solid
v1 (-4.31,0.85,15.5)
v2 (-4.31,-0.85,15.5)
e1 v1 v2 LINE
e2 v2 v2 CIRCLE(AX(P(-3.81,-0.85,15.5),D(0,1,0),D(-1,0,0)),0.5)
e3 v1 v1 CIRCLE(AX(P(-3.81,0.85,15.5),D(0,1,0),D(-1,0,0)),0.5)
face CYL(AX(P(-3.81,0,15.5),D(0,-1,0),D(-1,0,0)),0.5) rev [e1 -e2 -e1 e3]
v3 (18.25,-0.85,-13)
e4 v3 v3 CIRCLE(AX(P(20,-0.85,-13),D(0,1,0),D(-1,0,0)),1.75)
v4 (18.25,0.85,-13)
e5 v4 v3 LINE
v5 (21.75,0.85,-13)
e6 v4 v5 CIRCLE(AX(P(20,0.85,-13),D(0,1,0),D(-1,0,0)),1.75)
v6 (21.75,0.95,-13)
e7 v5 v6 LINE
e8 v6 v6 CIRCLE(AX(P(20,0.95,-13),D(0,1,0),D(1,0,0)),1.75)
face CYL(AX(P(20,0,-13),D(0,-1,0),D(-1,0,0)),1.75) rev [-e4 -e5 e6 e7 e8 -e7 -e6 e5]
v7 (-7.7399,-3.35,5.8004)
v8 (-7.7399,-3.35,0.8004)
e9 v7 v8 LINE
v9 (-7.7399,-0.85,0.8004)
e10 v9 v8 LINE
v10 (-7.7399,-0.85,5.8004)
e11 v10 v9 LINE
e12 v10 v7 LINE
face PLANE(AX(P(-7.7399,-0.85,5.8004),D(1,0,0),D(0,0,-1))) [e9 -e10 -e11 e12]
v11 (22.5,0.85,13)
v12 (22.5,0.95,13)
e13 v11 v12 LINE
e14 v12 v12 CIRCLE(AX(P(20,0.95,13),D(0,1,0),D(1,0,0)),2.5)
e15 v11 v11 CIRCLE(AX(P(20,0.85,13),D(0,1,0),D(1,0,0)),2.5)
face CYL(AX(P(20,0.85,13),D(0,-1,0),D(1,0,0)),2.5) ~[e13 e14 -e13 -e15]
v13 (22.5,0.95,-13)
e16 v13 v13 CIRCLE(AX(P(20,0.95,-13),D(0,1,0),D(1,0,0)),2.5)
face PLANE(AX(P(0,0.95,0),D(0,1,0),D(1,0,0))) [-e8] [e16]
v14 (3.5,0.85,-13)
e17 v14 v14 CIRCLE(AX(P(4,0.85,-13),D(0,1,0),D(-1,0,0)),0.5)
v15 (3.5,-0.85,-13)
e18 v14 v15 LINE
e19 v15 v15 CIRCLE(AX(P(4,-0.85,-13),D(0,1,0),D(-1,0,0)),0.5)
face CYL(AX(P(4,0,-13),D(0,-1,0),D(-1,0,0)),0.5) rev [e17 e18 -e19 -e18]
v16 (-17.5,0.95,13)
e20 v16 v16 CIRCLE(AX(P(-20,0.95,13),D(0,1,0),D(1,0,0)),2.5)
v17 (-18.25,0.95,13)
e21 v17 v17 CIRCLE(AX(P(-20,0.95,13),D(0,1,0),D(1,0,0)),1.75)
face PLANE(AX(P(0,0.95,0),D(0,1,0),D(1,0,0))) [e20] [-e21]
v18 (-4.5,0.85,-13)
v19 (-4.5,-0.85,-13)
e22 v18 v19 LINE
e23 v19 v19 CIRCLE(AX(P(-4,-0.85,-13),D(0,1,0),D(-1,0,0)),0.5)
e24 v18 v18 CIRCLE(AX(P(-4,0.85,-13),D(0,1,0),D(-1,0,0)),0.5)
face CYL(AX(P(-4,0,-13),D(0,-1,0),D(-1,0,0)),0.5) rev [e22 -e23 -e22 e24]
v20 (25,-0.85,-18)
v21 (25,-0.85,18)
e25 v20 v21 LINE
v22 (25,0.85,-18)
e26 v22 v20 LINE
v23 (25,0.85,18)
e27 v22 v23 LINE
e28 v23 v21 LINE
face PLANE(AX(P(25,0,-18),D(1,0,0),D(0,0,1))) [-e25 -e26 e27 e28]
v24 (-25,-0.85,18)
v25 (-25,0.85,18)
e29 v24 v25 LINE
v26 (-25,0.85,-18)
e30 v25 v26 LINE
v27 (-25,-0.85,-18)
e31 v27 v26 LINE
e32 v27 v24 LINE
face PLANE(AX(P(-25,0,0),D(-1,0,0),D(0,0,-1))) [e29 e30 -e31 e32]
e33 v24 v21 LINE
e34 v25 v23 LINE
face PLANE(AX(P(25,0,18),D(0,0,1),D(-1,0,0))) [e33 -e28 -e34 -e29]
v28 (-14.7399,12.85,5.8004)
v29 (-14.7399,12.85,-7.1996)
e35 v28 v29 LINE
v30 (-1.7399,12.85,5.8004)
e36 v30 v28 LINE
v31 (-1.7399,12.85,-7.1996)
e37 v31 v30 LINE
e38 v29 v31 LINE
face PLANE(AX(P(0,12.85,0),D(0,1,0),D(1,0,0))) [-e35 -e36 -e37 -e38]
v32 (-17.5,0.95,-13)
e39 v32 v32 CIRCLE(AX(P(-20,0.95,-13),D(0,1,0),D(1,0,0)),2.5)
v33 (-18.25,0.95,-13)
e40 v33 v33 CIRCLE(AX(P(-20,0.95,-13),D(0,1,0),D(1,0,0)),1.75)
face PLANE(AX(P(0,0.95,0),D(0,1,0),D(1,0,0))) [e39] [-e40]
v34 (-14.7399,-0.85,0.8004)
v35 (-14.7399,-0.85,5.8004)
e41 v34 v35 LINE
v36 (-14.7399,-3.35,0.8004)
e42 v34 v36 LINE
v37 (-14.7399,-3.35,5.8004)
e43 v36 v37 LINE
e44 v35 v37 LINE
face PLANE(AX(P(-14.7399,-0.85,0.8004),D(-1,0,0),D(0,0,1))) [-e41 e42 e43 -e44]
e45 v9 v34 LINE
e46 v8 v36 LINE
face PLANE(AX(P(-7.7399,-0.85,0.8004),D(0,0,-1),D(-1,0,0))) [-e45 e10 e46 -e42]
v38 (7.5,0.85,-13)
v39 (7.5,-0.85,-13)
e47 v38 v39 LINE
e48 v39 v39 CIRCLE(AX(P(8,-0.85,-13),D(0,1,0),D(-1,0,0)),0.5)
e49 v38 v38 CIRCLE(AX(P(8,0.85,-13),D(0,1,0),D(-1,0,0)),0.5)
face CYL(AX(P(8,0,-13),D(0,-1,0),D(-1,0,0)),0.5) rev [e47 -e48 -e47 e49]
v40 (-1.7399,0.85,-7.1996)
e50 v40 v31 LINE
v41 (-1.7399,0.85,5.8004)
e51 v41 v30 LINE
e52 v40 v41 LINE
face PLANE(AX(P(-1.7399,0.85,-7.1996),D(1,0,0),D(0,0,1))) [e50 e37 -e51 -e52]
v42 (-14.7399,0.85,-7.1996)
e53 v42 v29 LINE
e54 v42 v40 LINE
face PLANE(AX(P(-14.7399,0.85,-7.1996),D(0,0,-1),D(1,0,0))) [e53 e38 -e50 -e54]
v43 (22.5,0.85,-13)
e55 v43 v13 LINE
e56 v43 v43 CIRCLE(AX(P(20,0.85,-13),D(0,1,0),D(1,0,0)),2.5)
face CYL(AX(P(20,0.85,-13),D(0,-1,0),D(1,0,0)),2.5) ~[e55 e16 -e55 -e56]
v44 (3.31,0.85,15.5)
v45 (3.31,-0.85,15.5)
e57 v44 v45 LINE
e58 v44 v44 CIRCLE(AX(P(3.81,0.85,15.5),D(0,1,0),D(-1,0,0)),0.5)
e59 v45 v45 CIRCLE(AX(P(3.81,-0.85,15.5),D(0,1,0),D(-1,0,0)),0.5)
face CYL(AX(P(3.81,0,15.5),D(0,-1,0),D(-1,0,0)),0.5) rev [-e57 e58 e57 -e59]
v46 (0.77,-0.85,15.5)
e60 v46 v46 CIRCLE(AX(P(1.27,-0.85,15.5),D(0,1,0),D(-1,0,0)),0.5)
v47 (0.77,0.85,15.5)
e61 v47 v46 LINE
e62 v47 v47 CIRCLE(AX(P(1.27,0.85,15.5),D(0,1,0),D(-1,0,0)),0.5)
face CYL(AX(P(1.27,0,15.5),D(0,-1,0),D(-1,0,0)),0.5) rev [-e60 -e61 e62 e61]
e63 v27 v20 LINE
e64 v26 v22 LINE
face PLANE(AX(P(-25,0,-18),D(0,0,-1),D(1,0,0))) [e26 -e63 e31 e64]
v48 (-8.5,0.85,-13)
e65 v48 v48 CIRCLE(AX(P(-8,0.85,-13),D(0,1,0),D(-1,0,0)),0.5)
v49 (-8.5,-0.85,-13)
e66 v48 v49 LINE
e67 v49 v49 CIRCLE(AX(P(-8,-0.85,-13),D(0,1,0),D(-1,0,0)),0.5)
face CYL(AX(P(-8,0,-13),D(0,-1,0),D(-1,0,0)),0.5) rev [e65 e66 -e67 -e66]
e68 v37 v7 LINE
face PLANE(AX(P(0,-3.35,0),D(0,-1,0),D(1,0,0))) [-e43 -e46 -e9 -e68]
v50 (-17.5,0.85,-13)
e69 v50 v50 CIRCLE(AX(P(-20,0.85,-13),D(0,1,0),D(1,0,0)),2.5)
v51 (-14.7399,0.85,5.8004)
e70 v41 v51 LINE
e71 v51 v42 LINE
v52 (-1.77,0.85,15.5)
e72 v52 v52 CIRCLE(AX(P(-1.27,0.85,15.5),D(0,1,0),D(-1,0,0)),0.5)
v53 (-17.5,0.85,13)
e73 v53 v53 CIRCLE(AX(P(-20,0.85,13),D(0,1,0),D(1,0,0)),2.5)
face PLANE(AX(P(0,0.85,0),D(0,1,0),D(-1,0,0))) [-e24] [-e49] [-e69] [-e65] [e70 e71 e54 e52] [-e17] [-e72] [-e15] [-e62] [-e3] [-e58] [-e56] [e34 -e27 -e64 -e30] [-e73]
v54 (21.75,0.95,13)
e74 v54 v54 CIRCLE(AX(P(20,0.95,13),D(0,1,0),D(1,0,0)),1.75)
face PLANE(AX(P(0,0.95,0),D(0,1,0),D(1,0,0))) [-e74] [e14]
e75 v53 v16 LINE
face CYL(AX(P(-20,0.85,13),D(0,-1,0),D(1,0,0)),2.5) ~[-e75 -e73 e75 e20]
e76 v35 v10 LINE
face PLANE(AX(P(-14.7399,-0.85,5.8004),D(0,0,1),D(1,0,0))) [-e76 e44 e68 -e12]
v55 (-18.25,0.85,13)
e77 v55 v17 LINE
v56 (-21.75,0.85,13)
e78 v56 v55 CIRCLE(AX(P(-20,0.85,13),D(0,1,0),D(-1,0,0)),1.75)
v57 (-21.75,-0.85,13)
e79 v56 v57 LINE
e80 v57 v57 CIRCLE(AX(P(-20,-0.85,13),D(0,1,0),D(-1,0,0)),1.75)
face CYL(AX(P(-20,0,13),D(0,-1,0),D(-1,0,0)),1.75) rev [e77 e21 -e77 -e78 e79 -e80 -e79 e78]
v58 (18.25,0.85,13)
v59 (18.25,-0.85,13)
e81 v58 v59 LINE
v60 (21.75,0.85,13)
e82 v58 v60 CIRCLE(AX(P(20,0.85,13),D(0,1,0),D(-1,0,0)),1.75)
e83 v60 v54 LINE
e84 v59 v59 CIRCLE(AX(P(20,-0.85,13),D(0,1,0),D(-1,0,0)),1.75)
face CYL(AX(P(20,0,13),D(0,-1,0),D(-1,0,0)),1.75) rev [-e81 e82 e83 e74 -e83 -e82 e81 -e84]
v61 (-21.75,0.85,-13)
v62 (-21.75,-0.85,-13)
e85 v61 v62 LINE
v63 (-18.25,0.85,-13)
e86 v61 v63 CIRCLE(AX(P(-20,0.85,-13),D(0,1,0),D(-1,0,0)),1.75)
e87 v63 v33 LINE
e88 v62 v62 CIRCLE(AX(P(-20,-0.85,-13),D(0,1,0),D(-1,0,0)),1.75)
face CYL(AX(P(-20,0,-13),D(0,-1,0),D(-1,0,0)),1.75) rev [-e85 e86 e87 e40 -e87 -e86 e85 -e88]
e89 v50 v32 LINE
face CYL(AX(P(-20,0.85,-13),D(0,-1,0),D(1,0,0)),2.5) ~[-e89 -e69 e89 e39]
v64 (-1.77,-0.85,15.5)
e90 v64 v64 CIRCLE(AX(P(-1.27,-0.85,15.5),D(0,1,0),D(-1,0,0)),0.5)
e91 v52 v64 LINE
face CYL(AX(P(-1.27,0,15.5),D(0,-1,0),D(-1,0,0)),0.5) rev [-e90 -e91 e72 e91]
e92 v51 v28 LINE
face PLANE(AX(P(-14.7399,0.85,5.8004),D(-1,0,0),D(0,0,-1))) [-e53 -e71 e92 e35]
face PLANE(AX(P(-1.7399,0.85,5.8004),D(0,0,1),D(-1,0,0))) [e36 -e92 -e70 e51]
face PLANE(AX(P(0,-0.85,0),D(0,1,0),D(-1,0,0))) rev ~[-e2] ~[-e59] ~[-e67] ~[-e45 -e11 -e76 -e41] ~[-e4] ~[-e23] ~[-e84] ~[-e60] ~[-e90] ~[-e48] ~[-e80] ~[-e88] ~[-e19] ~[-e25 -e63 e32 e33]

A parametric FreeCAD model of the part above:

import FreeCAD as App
import Part
import Sketcher

V = App.Vector
Q = App.Units.Quantity


def add_polygon(sketch, points):
    """Adds a closed chain of lines whose ends are joined by coincident constraints."""
    first, n = sketch.GeometryCount, len(points)
    for a, b in zip(points, points[1:] + points[:1]):
        sketch.addGeometry(Part.LineSegment(App.Vector(*a, 0), App.Vector(*b, 0)), False)
    for i in range(n):
        sketch.addConstraint(Sketcher.Constraint("Coincident", first + i, 2, first + (i + 1) % n, 1))

doc = App.newDocument("Part")
params = doc.addObject("Spreadsheet::Sheet", "Params")
for row, (alias, value) in enumerate([
    ("sketch1_diameter", "1 mm"),
    ("sketch1_diameter2", "3.5 mm"),
    ("sketch1_width", "50 mm"),
    ("sketch1_height", "36 mm"),
    ("pad1_length", "1.7 mm"),
    ("sketch2_width", "13 mm"),
    ("pad2_length", "12 mm"),
    ("sketch3_width", "7 mm"),
    ("sketch3_height", "5 mm"),
    ("pad3_length", "2.5 mm"),
    ("sketch4_diameter", "5 mm"),
    ("sketch4_diameter2", "3.5 mm"),
    ("pad4_length", "0.1 mm"),
], start=1):
    params.set(f"A{row}", alias)
    params.set(f"B{row}", "=" + value)
    params.setAlias(f"B{row}", alias)

body = doc.addObject("PartDesign::Body", "Body")

sketch1 = doc.addObject("Sketcher::SketchObject", "Sketch")
body.addObject(sketch1)
sketch1.AttachmentSupport = (doc.XZ_Plane, [""])
sketch1.MapMode = "FlatFace"
add_polygon(sketch1, [(25, -18), (-25, -18), (-25, 18), (25, 18)])
sketch1.addGeometry(Part.Circle(V(20, -13, 0), V(0, 0, 1), 1.8), False)
sketch1.addGeometry(Part.Circle(V(8, -13, 0), V(0, 0, 1), 0.5), False)
sketch1.addGeometry(Part.Circle(V(4, -13, 0), V(0, 0, 1), 0.5), False)
sketch1.addGeometry(Part.Circle(V(-4, -13, 0), V(0, 0, 1), 0.5), False)
sketch1.addGeometry(Part.Circle(V(-8, -13, 0), V(0, 0, 1), 0.5), False)
sketch1.addGeometry(Part.Circle(V(-20, -13, 0), V(0, 0, 1), 1.8), False)
sketch1.addGeometry(Part.Circle(V(20, 13, 0), V(0, 0, 1), 1.8), False)
sketch1.addGeometry(Part.Circle(V(3.8, 15.5, 0), V(0, 0, 1), 0.5), False)
sketch1.addGeometry(Part.Circle(V(1.3, 15.5, 0), V(0, 0, 1), 0.5), False)
sketch1.addGeometry(Part.Circle(V(-1.3, 15.5, 0), V(0, 0, 1), 0.5), False)
sketch1.addGeometry(Part.Circle(V(-3.8, 15.5, 0), V(0, 0, 1), 0.5), False)
sketch1.addGeometry(Part.Circle(V(-20, 13, 0), V(0, 0, 1), 1.8), False)
sketch1.addConstraint([
    Sketcher.Constraint("Horizontal", 0),
    Sketcher.Constraint("Vertical", 1),
    Sketcher.Constraint("Horizontal", 2),
    Sketcher.Constraint("Vertical", 3),
    Sketcher.Constraint("Equal", 5, 6),
    Sketcher.Constraint("Equal", 6, 7),
    Sketcher.Constraint("Equal", 7, 8),
    Sketcher.Constraint("Equal", 4, 9),
    Sketcher.Constraint("Equal", 9, 10),
    Sketcher.Constraint("Equal", 8, 11),
    Sketcher.Constraint("Equal", 11, 12),
    Sketcher.Constraint("Equal", 12, 13),
    Sketcher.Constraint("Equal", 13, 14),
    Sketcher.Constraint("Equal", 10, 15),
    Sketcher.Constraint("Symmetric", 9, 3, 10, 3, -1, 1),
    Sketcher.Constraint("Symmetric", 4, 3, 15, 3, -1, 1),
    Sketcher.Constraint("Symmetric", 0, 2, 2, 2, -1, 1),
    Sketcher.Constraint("Symmetric", 6, 3, 7, 3, -2),
    Sketcher.Constraint("Symmetric", 5, 3, 8, 3, -2),
    Sketcher.Constraint("Symmetric", 4, 3, 9, 3, -2),
    Sketcher.Constraint("Symmetric", 12, 3, 13, 3, -2),
    Sketcher.Constraint("Symmetric", 11, 3, 14, 3, -2),
    Sketcher.Constraint("Horizontal", 4, 3, 5, 3),
    Sketcher.Constraint("Horizontal", 5, 3, 6, 3),
    Sketcher.Constraint("Horizontal", 11, 3, 12, 3),
    Sketcher.Constraint("Diameter", 5, Q("1 mm")),
    Sketcher.Constraint("Diameter", 4, Q("3.5 mm")),
    Sketcher.Constraint("DistanceX", 0, 2, 0, 1, Q("50 mm")),
    Sketcher.Constraint("DistanceY", 1, 1, 1, 2, Q("36 mm")),
    Sketcher.Constraint("DistanceX", -1, 1, 6, 3, Q("4 mm")),
    Sketcher.Constraint("DistanceX", 5, 3, 4, 3, Q("12 mm")),
    Sketcher.Constraint("DistanceX", 6, 3, 5, 3, Q("4 mm")),
    Sketcher.Constraint("DistanceY", 4, 3, 10, 3, Q("26 mm")),
    Sketcher.Constraint("DistanceY", 10, 3, 11, 3, Q("2.5 mm")),
    Sketcher.Constraint("DistanceX", -1, 1, 12, 3, Q("1.27 mm")),
    Sketcher.Constraint("DistanceX", 12, 3, 11, 3, Q("2.54 mm")),
])
sketch1.setExpression("Constraints[29]", "Params.sketch1_diameter")
sketch1.setExpression("Constraints[30]", "Params.sketch1_diameter2")
sketch1.setExpression("Constraints[31]", "Params.sketch1_width")
sketch1.setExpression("Constraints[32]", "Params.sketch1_height")
pad1 = doc.addObject("PartDesign::Pad", "Pad")
body.addObject(pad1)
pad1.Profile = sketch1
pad1.setExpression("Length", "Params.pad1_length")
pad1.Midplane = True

sketch2 = doc.addObject("Sketcher::SketchObject", "Sketch001")
body.addObject(sketch2)
sketch2.AttachmentSupport = (doc.XZ_Plane, [""])
sketch2.MapMode = "FlatFace"
sketch2.AttachmentOffset = App.Placement(V(0, 0, -0.85), App.Rotation())
add_polygon(sketch2, [(-2, -7), (-15, -7), (-15, 6), (-2, 6)])
sketch2.addConstraint([
    Sketcher.Constraint("Horizontal", 0),
    Sketcher.Constraint("Vertical", 1),
    Sketcher.Constraint("Horizontal", 2),
    Sketcher.Constraint("Vertical", 3),
    Sketcher.Constraint("Equal", 2, 1),
    Sketcher.Constraint("DistanceX", 0, 2, 0, 1, Q("13 mm")),
    Sketcher.Constraint("DistanceX", 0, 2, -1, 1, Q("14.74 mm")),
    Sketcher.Constraint("DistanceY", 0, 2, -1, 1, Q("7.1996 mm")),
])
sketch2.setExpression("Constraints[9]", "Params.sketch2_width")
pad2 = doc.addObject("PartDesign::Pad", "Pad001")
body.addObject(pad2)
pad2.Profile = sketch2
pad2.setExpression("Length", "Params.pad2_length")
pad2.Reversed = True

sketch3 = doc.addObject("Sketcher::SketchObject", "Sketch002")
body.addObject(sketch3)
sketch3.AttachmentSupport = (doc.XZ_Plane, [""])
sketch3.MapMode = "FlatFace"
sketch3.AttachmentOffset = App.Placement(V(0, 0, 0.85), App.Rotation())
add_polygon(sketch3, [(-8, 6), (-15, 6), (-15, 1), (-8, 1)])
sketch3.addConstraint([
    Sketcher.Constraint("Horizontal", 0),
    Sketcher.Constraint("Vertical", 1),
    Sketcher.Constraint("Horizontal", 2),
    Sketcher.Constraint("Vertical", 3),
    Sketcher.Constraint("DistanceX", 0, 2, 0, 1, Q("7 mm")),
    Sketcher.Constraint("DistanceY", 1, 2, 1, 1, Q("5 mm")),
    Sketcher.Constraint("DistanceX", 0, 2, -1, 1, Q("14.74 mm")),
    Sketcher.Constraint("DistanceY", -1, 1, 0, 2, Q("5.8004 mm")),
])
sketch3.setExpression("Constraints[8]", "Params.sketch3_width")
sketch3.setExpression("Constraints[9]", "Params.sketch3_height")
pad3 = doc.addObject("PartDesign::Pad", "Pad002")
body.addObject(pad3)
pad3.Profile = sketch3
pad3.setExpression("Length", "Params.pad3_length")

sketch4 = doc.addObject("Sketcher::SketchObject", "Sketch003")
body.addObject(sketch4)
sketch4.AttachmentSupport = (doc.XZ_Plane, [""])
sketch4.MapMode = "FlatFace"
sketch4.AttachmentOffset = App.Placement(V(0, 0, -0.85), App.Rotation())
sketch4.addGeometry([
    Part.Circle(V(-20, -13, 0), V(0, 0, 1), 2.5),
    Part.Circle(V(-20, -13, 0), V(0, 0, 1), 1.8),
    Part.Circle(V(-20, 13, 0), V(0, 0, 1), 2.5),
    Part.Circle(V(-20, 13, 0), V(0, 0, 1), 1.8),
    Part.Circle(V(20, -13, 0), V(0, 0, 1), 2.5),
    Part.Circle(V(20, -13, 0), V(0, 0, 1), 1.8),
    Part.Circle(V(20, 13, 0), V(0, 0, 1), 2.5),
    Part.Circle(V(20, 13, 0), V(0, 0, 1), 1.8),
], False)
sketch4.addConstraint([
    Sketcher.Constraint("Coincident", 1, 3, 0, 3),
    Sketcher.Constraint("Coincident", 3, 3, 2, 3),
    Sketcher.Constraint("Coincident", 5, 3, 4, 3),
    Sketcher.Constraint("Coincident", 7, 3, 6, 3),
    Sketcher.Constraint("Equal", 0, 2),
    Sketcher.Constraint("Equal", 1, 3),
    Sketcher.Constraint("Equal", 2, 4),
    Sketcher.Constraint("Equal", 3, 5),
    Sketcher.Constraint("Equal", 4, 6),
    Sketcher.Constraint("Equal", 5, 7),
    Sketcher.Constraint("Symmetric", 2, 3, 4, 3, -1, 1),
    Sketcher.Constraint("Symmetric", 0, 3, 6, 3, -1, 1),
    Sketcher.Constraint("Symmetric", 0, 3, 4, 3, -2),
    Sketcher.Constraint("Diameter", 0, Q("5 mm")),
    Sketcher.Constraint("Diameter", 1, Q("3.5 mm")),
    Sketcher.Constraint("DistanceX", 0, 3, -1, 1, Q("20 mm")),
    Sketcher.Constraint("DistanceY", 0, 3, -1, 1, Q("13 mm")),
])
sketch4.setExpression("Constraints[13]", "Params.sketch4_diameter")
sketch4.setExpression("Constraints[14]", "Params.sketch4_diameter2")
pad4 = doc.addObject("PartDesign::Pad", "Pad003")
body.addObject(pad4)
pad4.Profile = sketch4
pad4.setExpression("Length", "Params.pad4_length")
pad4.Reversed = True

doc.recompute()
